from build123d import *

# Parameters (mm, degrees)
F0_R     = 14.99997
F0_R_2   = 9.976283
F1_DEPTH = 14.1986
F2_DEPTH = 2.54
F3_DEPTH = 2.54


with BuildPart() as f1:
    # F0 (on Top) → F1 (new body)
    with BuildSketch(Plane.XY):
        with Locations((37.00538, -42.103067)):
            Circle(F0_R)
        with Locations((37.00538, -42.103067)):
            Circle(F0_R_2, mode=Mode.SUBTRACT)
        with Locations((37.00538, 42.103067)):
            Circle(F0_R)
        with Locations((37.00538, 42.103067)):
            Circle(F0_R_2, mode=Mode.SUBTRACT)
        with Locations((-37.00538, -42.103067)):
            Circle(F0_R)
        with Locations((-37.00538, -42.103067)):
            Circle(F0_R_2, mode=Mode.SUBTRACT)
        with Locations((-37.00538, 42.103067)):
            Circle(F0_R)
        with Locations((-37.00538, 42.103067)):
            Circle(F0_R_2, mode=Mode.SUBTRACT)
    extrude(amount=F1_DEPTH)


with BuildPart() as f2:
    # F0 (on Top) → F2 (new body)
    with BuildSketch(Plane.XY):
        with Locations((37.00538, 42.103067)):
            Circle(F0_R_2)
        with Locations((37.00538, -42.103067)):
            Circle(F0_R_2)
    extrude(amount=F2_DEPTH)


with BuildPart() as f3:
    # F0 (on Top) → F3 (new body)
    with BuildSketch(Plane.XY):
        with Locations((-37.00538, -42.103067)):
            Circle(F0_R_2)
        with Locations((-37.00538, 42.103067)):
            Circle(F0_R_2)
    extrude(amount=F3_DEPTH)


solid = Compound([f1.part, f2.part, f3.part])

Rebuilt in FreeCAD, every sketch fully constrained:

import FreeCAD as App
import Part
import Sketcher
from FreeCAD import Vector
Q = App.Units.Quantity

doc = App.newDocument("Part")
body = doc.addObject("PartDesign::Body", "Body")
body.AllowCompound = True

# Sketch on XY plane
sketch1 = doc.addObject("Sketcher::SketchObject", "Sketch")
body.addObject(sketch1)
sketch1.AttachmentSupport = (doc.XY_Plane, [""])
sketch1.MapMode = "FlatFace"
sketch1.addGeometry([
    Part.Circle(Vector(37.00538, -42.103067, 0), Vector(0, 0, 1), 14.99997),  # 0
    Part.Circle(Vector(37.00538, -42.103067, 0), Vector(0, 0, 1), 9.976283),  # 1
    Part.Circle(Vector(37.00538, 42.103067, 0), Vector(0, 0, 1), 14.99997),  # 2
    Part.Circle(Vector(37.00538, 42.103067, 0), Vector(0, 0, 1), 9.976283),  # 3
    Part.Circle(Vector(-37.00538, -42.103067, 0), Vector(0, 0, 1), 14.99997),  # 4
    Part.Circle(Vector(-37.00538, -42.103067, 0), Vector(0, 0, 1), 9.976283),  # 5
    Part.Circle(Vector(-37.00538, 42.103067, 0), Vector(0, 0, 1), 14.99997),  # 6
    Part.Circle(Vector(-37.00538, 42.103067, 0), Vector(0, 0, 1), 9.976283),  # 7
], False)
sketch1.addConstraint([
    Sketcher.Constraint("Coincident", 1, 3, 0, 3),
    Sketcher.Constraint("Coincident", 3, 3, 2, 3),
    Sketcher.Constraint("Coincident", 5, 3, 4, 3),
    Sketcher.Constraint("Coincident", 7, 3, 6, 3),
    Sketcher.Constraint("Equal", 0, 2),
    Sketcher.Constraint("Equal", 1, 3),
    Sketcher.Constraint("Equal", 2, 4),
    Sketcher.Constraint("Equal", 3, 5),
    Sketcher.Constraint("Equal", 4, 6),
    Sketcher.Constraint("Equal", 5, 7),
    Sketcher.Constraint("Symmetric", 2, 3, 4, 3, -1, 1),
    Sketcher.Constraint("Symmetric", 0, 3, 6, 3, -1, 1),
    Sketcher.Constraint("Symmetric", 0, 3, 4, 3, -2),
    Sketcher.Constraint("Diameter", 0, Q("1.1811 in")),
    Sketcher.Constraint("Diameter", 1, 19.952566),
    Sketcher.Constraint("DistanceX", -1, 1, 0, 3, 37.00538),
    Sketcher.Constraint("DistanceY", 0, 3, -1, 1, 42.103067),
])
pad1 = doc.addObject("PartDesign::Pad", "Pad")
body.addObject(pad1)
pad1.Profile = sketch1
pad1.Length = Q("0.559 in")
body2 = doc.addObject("PartDesign::Body", "Body001")
body2.AllowCompound = True

# Sketch on XY plane
sketch2 = doc.addObject("Sketcher::SketchObject", "Sketch001")
body2.addObject(sketch2)
sketch2.AttachmentSupport = (doc.getObject("XY_Plane001"), [""])
sketch2.MapMode = "FlatFace"
sketch2.addGeometry([
    Part.Circle(Vector(37.00538, 42.103067, 0), Vector(0, 0, 1), 9.976283),
    Part.Circle(Vector(37.00538, -42.103067, 0), Vector(0, 0, 1), 9.976283),
], False)
sketch2.addConstraint([
    Sketcher.Constraint("Equal", 0, 1),
    Sketcher.Constraint("Symmetric", 0, 3, 1, 3, -1),
    Sketcher.Constraint("Diameter", 0, 19.952566),
    Sketcher.Constraint("DistanceX", -1, 1, 0, 3, 37.00538),
    Sketcher.Constraint("DistanceY", -1, 1, 0, 3, 42.103067),
])
pad2 = doc.addObject("PartDesign::Pad", "Pad001")
body2.addObject(pad2)
pad2.Profile = sketch2
pad2.Length = Q("0.1 in")
body3 = doc.addObject("PartDesign::Body", "Body002")
body3.AllowCompound = True

# Sketch on XY plane
sketch3 = doc.addObject("Sketcher::SketchObject", "Sketch002")
body3.addObject(sketch3)
sketch3.AttachmentSupport = (doc.getObject("XY_Plane002"), [""])
sketch3.MapMode = "FlatFace"
sketch3.addGeometry([
    Part.Circle(Vector(-37.00538, -42.103067, 0), Vector(0, 0, 1), 9.976283),
    Part.Circle(Vector(-37.00538, 42.103067, 0), Vector(0, 0, 1), 9.976283),
], False)
sketch3.addConstraint([
    Sketcher.Constraint("Equal", 0, 1),
    Sketcher.Constraint("Symmetric", 0, 3, 1, 3, -1),
    Sketcher.Constraint("Diameter", 0, 19.952566),
    Sketcher.Constraint("DistanceX", 0, 3, -1, 1, 37.00538),
    Sketcher.Constraint("DistanceY", 0, 3, -1, 1, 42.103067),
])
pad3 = doc.addObject("PartDesign::Pad", "Pad002")
body3.addObject(pad3)
pad3.Profile = sketch3
pad3.Length = Q("0.1 in")

doc.recompute()
